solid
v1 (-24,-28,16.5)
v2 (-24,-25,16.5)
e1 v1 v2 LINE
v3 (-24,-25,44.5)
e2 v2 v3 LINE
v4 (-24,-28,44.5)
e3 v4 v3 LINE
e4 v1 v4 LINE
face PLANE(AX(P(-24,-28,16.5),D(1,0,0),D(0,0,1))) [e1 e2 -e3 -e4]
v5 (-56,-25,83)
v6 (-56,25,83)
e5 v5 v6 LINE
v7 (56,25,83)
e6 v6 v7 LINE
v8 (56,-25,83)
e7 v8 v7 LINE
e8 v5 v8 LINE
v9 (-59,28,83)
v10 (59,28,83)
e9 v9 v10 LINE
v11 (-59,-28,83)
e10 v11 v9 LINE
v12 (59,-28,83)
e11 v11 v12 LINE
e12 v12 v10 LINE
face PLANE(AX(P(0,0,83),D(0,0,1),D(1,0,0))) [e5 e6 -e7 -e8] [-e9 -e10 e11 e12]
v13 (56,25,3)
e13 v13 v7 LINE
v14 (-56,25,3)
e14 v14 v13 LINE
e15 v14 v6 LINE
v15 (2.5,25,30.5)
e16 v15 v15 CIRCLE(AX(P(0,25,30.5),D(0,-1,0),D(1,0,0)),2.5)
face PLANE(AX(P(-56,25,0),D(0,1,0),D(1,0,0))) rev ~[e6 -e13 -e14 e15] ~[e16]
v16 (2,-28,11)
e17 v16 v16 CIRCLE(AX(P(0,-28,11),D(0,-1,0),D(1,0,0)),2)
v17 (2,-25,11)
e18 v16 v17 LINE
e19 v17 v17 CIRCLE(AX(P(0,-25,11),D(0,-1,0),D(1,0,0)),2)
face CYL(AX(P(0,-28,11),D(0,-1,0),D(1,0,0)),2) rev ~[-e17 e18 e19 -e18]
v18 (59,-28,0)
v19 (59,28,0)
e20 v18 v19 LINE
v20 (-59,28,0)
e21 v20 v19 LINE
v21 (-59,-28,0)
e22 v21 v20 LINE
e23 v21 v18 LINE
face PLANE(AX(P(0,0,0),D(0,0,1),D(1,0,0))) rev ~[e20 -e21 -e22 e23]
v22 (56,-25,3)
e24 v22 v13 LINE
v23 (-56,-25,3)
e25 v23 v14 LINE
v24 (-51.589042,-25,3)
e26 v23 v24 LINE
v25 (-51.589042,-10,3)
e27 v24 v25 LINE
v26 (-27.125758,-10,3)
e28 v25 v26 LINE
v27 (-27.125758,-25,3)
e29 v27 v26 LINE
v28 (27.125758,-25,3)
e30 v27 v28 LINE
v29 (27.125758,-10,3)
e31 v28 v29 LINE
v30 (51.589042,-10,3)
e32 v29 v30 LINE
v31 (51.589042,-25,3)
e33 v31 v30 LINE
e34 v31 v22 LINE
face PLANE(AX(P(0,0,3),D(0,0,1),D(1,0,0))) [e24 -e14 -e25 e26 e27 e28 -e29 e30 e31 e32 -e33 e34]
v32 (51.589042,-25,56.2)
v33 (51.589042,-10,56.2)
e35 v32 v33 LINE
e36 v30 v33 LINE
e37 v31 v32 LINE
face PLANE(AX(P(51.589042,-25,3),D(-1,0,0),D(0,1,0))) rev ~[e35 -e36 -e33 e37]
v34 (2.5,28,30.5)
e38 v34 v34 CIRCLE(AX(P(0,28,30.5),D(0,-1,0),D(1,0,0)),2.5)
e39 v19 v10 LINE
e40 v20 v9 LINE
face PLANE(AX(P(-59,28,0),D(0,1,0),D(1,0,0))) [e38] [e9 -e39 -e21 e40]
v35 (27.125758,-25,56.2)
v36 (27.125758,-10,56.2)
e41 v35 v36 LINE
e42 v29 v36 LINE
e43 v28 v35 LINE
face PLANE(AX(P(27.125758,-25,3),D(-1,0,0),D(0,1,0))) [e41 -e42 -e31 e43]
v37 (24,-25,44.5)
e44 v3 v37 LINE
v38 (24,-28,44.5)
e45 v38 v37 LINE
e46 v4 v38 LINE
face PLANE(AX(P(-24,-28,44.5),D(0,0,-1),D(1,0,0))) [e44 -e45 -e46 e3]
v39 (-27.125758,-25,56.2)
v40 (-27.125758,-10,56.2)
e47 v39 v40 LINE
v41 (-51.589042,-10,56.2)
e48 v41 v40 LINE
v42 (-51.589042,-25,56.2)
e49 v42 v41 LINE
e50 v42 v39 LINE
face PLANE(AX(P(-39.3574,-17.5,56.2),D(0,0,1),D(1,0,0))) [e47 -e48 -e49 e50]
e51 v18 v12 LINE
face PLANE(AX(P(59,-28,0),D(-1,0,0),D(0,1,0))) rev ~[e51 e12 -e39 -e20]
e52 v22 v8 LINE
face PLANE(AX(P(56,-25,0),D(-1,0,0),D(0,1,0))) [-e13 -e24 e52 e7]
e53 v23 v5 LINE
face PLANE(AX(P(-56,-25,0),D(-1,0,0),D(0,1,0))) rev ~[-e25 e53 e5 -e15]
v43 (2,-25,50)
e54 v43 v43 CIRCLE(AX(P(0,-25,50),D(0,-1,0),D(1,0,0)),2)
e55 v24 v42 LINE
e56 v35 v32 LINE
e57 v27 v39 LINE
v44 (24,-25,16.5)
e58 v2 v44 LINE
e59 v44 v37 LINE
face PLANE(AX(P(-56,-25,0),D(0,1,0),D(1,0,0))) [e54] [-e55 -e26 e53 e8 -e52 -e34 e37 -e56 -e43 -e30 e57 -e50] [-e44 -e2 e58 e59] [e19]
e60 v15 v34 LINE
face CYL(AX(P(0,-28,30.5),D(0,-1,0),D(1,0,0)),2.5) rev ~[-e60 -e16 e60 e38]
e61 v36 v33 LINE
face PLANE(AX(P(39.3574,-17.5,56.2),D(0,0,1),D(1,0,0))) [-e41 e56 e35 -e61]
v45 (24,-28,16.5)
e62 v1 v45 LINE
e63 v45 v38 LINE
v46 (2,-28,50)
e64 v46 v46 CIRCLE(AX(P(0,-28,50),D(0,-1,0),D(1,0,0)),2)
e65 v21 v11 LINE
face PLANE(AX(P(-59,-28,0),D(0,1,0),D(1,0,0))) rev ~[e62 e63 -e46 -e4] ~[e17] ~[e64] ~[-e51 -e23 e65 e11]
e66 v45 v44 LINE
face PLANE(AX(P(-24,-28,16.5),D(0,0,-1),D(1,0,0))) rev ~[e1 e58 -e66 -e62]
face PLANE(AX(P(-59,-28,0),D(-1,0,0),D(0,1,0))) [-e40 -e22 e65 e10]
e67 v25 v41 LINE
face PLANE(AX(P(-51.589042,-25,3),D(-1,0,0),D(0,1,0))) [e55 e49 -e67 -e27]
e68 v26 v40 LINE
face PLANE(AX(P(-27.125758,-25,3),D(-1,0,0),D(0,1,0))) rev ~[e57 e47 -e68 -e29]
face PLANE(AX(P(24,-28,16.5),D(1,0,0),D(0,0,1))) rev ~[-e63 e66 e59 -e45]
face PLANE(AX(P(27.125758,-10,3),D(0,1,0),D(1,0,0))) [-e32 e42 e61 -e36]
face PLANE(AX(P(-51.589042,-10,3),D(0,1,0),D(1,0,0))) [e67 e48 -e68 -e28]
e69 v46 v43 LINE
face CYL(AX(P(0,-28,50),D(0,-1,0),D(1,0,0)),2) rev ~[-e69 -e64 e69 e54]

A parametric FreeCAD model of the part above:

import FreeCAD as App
import Part
import Sketcher
from FreeCAD import Vector
Q = App.Units.Quantity


def add_polygon(sketch, points):
    """Adds a closed chain of lines whose ends are joined by coincident constraints."""
    first, n = sketch.GeometryCount, len(points)
    for a, b in zip(points, points[1:] + points[:1]):
        sketch.addGeometry(Part.LineSegment(App.Vector(*a, 0), App.Vector(*b, 0)), False)
    for i in range(n):
        sketch.addConstraint(Sketcher.Constraint("Coincident", first + i, 2, first + (i + 1) % n, 1))

doc = App.newDocument("Part")
body = doc.addObject("PartDesign::Body", "Body")

sketch1 = body.newObject("Sketcher::SketchObject", "Sketch")
sketch1.AttachmentSupport = (doc.getObject("XY_Plane"), [""])
sketch1.MapMode = "FlatFace"
add_polygon(sketch1, [(-56, 25), (-56, -25), (56, -25), (56, 25)])
sketch1.addConstraint([
    Sketcher.Constraint("Vertical", 0),
    Sketcher.Constraint("Horizontal", 1),
    Sketcher.Constraint("Vertical", 2),
    Sketcher.Constraint("Horizontal", 3),
    Sketcher.Constraint("Symmetric", 0, 2, 2, 2, -1, 1),
    Sketcher.Constraint("DistanceX", 1, 1, 1, 2, Q("112 mm")),
    Sketcher.Constraint("DistanceY", 0, 2, 0, 1, Q("50 mm")),
])
pad1 = body.newObject("PartDesign::Pad", "Pad")
pad1.Profile = sketch1
pad1.Length = 3

sketch2 = body.newObject("Sketcher::SketchObject", "Sketch001")
sketch2.AttachmentSupport = (doc.getObject("XY_Plane"), [""])
sketch2.MapMode = "FlatFace"
add_polygon(sketch2, [(-59, 28), (-59, -28), (59, -28), (59, 28)])
add_polygon(sketch2, [(56, -25), (-56, -25), (-56, 25), (56, 25)])
sketch2.addConstraint([
    Sketcher.Constraint("Vertical", 0),
    Sketcher.Constraint("Horizontal", 1),
    Sketcher.Constraint("Vertical", 2),
    Sketcher.Constraint("Horizontal", 3),
    Sketcher.Constraint("Horizontal", 4),
    Sketcher.Constraint("Vertical", 5),
    Sketcher.Constraint("Horizontal", 6),
    Sketcher.Constraint("Vertical", 7),
    Sketcher.Constraint("Symmetric", 0, 2, 2, 2, -1, 1),
    Sketcher.Constraint("Symmetric", 4, 2, 6, 2, -1, 1),
    Sketcher.Constraint("DistanceX", 1, 1, 1, 2, Q("118 mm")),
    Sketcher.Constraint("DistanceX", 4, 2, 4, 1, Q("112 mm")),
    Sketcher.Constraint("DistanceY", 0, 2, 0, 1, Q("56 mm")),
    Sketcher.Constraint("DistanceY", 5, 1, 5, 2, Q("50 mm")),
])
pad2 = body.newObject("PartDesign::Pad", "Pad001")
pad2.Profile = sketch2
pad2.Length = 83

sketch3 = body.newObject("Sketcher::SketchObject", "Sketch002")
sketch3.AttachmentSupport = (doc.getObject("XZ_Plane"), [""])
sketch3.MapMode = "FlatFace"
sketch3.AttachmentOffset = App.Placement(Vector(0, 0, 28), App.Rotation())
add_polygon(sketch3, [(-24, 44), (-24, 16), (24, 16), (24, 44)])
sketch3.addConstraint([
    Sketcher.Constraint("Vertical", 0),
    Sketcher.Constraint("Horizontal", 1),
    Sketcher.Constraint("Vertical", 2),
    Sketcher.Constraint("Horizontal", 3),
    Sketcher.Constraint("DistanceX", 1, 1, 1, 2, Q("48 mm")),
    Sketcher.Constraint("DistanceY", 0, 2, 0, 1, Q("28 mm")),
    Sketcher.Constraint("DistanceX", 0, 2, -1, 1, Q("24 mm")),
    Sketcher.Constraint("DistanceY", -1, 1, 0, 2, Q("16.5 mm")),
])
pocket1 = body.newObject("PartDesign::Pocket", "Pocket")
pocket1.Profile = sketch3
pocket1.Length = 3

sketch4 = body.newObject("Sketcher::SketchObject", "Sketch003")
sketch4.AttachmentSupport = (doc.getObject("XZ_Plane"), [""])
sketch4.MapMode = "FlatFace"
sketch4.AttachmentOffset = App.Placement(Vector(0, 0, 28), App.Rotation())
sketch4.addGeometry([
    Part.Circle(Vector(0, 50, 0), Vector(0, 0, 1), 2),
    Part.Circle(Vector(0, 11, 0), Vector(0, 0, 1), 2),
], False)
sketch4.addConstraint([
    Sketcher.Constraint("Equal", 0, 1),
    Sketcher.Constraint("PointOnObject", 0, 3, -2),
    Sketcher.Constraint("PointOnObject", 1, 3, -2),
    Sketcher.Constraint("Diameter", 0, Q("4 mm")),
    Sketcher.Constraint("DistanceY", -1, 1, 0, 3, Q("50 mm")),
    Sketcher.Constraint("DistanceY", -1, 1, 1, 3, Q("11 mm")),
])
pocket2 = body.newObject("PartDesign::Pocket", "Pocket001")
pocket2.Profile = sketch4
pocket2.Length = 3

sketch5 = body.newObject("Sketcher::SketchObject", "Sketch004")
sketch5.AttachmentSupport = (doc.getObject("XZ_Plane"), [""])
sketch5.MapMode = "FlatFace"
sketch5.AttachmentOffset = App.Placement(Vector(0, 0, 28), App.Rotation())
sketch5.addGeometry(Part.Circle(Vector(0, 30.5, 0), Vector(0, 0, 1), 2.5), False)
sketch5.addConstraint([
    Sketcher.Constraint("PointOnObject", 0, 3, -2),
    Sketcher.Constraint("Diameter", 0, Q("5 mm")),
    Sketcher.Constraint("DistanceY", -1, 1, 0, 3, Q("30.5 mm")),
])
pocket3 = body.newObject("PartDesign::Pocket", "Pocket002")
pocket3.Profile = sketch5
pocket3.Length = 76.6

sketch6 = body.newObject("Sketcher::SketchObject", "Sketch005")
sketch6.AttachmentSupport = (doc.getObject("XY_Plane"), [""])
sketch6.MapMode = "FlatFace"
sketch6.AttachmentOffset = App.Placement(Vector(0, 0, 3), App.Rotation())
add_polygon(sketch6, [(-52, -10), (-52, -25), (-27, -25), (-27, -10)])
add_polygon(sketch6, [(27, -10), (27, -25), (52, -25), (52, -10)])
sketch6.addConstraint([
    Sketcher.Constraint("Vertical", 0),
    Sketcher.Constraint("Horizontal", 1),
    Sketcher.Constraint("Vertical", 2),
    Sketcher.Constraint("Horizontal", 3),
    Sketcher.Constraint("Vertical", 4),
    Sketcher.Constraint("Horizontal", 5),
    Sketcher.Constraint("Vertical", 6),
    Sketcher.Constraint("Horizontal", 7),
    Sketcher.Constraint("Symmetric", 1, 2, 4, 2, -2),
    Sketcher.Constraint("Symmetric", 3, 2, 6, 2, -2),
    Sketcher.Constraint("DistanceY", 0, 2, 0, 1, Q("15 mm")),
    Sketcher.Constraint("DistanceY", 0, 2, -1, 1, Q("25 mm")),
    Sketcher.Constraint("DistanceX", 0, 2, 4, 2, Q("78.7148 mm")),
    Sketcher.Constraint("DistanceX", 1, 1, 1, 2, Q("24.463284 mm")),
])
pad3 = body.newObject("PartDesign::Pad", "Pad002")
pad3.Profile = sketch6
pad3.Length = 53.2

doc.recompute()
